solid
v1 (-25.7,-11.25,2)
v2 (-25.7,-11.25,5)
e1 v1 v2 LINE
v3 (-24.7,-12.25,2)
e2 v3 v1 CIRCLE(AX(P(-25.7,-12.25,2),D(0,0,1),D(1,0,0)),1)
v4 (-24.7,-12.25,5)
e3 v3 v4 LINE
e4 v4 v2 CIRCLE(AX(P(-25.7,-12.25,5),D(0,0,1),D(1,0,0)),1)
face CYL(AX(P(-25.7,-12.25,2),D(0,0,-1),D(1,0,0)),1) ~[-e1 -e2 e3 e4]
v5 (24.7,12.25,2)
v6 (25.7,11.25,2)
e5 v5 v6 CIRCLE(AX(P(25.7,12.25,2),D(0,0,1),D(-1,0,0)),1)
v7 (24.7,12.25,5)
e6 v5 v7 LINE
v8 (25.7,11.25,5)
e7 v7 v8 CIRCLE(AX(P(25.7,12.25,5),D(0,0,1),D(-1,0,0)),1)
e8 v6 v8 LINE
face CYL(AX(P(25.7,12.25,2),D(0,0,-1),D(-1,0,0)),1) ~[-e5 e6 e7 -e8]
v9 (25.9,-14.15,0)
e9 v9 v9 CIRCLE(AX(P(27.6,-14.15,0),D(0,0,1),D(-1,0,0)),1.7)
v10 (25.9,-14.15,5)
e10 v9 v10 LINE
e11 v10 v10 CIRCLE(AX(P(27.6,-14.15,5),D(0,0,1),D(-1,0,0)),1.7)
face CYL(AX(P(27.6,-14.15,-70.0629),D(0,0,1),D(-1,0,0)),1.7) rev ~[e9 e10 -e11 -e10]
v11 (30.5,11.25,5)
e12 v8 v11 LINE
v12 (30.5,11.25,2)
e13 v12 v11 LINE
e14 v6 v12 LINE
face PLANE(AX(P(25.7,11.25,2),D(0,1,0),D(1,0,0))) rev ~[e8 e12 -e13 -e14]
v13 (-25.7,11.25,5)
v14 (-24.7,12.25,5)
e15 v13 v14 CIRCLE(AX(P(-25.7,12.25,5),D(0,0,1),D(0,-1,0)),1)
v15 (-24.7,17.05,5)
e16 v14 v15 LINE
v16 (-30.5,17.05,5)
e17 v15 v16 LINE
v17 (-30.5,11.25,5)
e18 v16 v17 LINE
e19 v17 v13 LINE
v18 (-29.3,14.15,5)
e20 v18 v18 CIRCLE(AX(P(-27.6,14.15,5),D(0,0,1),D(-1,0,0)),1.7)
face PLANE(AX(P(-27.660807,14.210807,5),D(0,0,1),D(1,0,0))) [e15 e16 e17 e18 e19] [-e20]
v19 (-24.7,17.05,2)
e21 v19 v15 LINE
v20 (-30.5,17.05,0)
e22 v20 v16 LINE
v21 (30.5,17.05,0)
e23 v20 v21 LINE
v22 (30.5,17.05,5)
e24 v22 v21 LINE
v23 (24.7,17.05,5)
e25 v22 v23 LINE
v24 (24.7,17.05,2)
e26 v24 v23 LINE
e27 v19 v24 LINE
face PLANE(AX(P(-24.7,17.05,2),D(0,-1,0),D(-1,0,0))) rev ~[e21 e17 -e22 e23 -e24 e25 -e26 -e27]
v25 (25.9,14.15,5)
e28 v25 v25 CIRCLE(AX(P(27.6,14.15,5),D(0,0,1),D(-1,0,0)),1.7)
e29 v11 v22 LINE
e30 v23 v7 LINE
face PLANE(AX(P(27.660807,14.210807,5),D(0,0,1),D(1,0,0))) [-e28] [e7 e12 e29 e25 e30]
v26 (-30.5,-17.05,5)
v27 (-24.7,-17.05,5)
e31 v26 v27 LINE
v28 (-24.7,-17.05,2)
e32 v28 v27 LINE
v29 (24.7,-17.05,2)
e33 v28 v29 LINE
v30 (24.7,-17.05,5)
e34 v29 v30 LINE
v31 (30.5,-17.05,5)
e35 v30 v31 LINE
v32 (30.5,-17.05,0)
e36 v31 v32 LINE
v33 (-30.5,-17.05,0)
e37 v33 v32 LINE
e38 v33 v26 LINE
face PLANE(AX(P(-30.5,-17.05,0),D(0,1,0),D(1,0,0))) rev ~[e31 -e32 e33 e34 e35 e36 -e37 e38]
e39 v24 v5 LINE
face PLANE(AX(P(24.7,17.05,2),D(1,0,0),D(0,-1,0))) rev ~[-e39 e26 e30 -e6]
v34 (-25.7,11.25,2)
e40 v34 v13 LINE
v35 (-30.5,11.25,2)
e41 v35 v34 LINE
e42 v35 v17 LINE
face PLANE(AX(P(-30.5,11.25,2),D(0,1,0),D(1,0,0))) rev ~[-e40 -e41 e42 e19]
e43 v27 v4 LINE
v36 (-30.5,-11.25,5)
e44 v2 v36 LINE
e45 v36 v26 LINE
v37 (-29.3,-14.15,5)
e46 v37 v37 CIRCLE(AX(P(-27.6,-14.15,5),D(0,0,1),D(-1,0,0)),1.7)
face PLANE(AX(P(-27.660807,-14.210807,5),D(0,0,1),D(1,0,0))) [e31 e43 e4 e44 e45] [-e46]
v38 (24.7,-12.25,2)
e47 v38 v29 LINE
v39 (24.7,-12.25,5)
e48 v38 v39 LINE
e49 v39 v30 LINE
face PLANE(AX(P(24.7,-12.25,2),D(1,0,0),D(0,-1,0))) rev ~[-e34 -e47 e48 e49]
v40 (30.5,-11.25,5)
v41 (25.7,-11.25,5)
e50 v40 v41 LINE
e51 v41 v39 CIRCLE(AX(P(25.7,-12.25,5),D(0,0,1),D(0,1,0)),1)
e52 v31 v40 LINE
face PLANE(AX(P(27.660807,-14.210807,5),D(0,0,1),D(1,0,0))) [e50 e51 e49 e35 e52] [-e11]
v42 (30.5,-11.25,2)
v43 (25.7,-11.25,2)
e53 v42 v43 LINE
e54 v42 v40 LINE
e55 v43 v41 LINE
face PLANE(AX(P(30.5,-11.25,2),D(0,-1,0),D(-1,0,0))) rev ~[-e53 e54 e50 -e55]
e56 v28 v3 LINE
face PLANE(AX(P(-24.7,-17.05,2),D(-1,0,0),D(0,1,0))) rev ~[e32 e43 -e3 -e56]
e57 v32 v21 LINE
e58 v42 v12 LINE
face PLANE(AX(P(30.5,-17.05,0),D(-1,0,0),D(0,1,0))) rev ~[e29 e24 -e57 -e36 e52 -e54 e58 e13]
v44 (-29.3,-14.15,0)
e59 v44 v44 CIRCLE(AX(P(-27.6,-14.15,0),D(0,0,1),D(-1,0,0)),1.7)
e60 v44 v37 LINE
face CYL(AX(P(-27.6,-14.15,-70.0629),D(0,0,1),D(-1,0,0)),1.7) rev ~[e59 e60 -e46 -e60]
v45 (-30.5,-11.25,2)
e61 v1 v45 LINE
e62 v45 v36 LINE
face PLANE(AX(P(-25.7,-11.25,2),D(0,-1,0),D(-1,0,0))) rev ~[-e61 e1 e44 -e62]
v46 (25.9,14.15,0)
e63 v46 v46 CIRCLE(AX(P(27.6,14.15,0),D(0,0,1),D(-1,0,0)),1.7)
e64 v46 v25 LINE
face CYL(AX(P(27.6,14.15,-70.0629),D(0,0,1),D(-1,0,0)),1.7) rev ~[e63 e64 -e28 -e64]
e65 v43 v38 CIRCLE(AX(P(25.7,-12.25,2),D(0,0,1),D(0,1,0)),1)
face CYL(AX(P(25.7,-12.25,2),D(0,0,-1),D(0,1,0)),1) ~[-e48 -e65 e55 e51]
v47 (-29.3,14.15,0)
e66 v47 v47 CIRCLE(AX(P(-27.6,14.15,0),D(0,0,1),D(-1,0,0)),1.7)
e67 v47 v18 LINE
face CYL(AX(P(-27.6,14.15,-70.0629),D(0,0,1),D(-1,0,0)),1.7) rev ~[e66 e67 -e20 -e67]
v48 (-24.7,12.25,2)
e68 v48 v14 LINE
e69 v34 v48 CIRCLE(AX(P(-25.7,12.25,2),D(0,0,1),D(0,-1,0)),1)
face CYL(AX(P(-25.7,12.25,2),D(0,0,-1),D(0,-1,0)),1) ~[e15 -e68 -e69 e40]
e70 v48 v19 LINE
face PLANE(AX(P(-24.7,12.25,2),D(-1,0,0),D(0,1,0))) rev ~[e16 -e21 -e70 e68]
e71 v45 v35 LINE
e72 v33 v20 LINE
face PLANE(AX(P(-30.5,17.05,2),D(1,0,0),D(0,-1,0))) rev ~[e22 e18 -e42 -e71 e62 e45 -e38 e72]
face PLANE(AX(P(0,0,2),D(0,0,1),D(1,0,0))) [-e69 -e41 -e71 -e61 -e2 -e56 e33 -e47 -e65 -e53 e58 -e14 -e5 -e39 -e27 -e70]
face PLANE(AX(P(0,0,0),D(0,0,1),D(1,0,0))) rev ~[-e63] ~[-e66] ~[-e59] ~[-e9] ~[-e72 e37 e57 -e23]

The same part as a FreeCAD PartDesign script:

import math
import FreeCAD as App
import Part
import Sketcher


def add_polygon(sketch, points):
    """Adds a closed chain of lines whose ends are joined by coincident constraints."""
    first, n = sketch.GeometryCount, len(points)
    for a, b in zip(points, points[1:] + points[:1]):
        sketch.addGeometry(Part.LineSegment(App.Vector(*a, 0), App.Vector(*b, 0)), False)
    for i in range(n):
        sketch.addConstraint(Sketcher.Constraint("Coincident", first + i, 2, first + (i + 1) % n, 1))

doc = App.newDocument("Part")
body = doc.addObject("PartDesign::Body", "Body")

sketch1 = doc.addObject("Sketcher::SketchObject", "Sketch")
body.addObject(sketch1)
sketch1.AttachmentSupport = (doc.XY_Plane, [""])
sketch1.MapMode = "FlatFace"
add_polygon(sketch1, [(-30, 17), (-30, -17), (30, -17), (30, 17)])
sketch1.addConstraint(Sketcher.Constraint("Vertical", 0))
sketch1.addConstraint(Sketcher.Constraint("Horizontal", 1))
sketch1.addConstraint(Sketcher.Constraint("Vertical", 2))
sketch1.addConstraint(Sketcher.Constraint("Horizontal", 3))
sketch1.addConstraint(Sketcher.Constraint("Symmetric", 0, 2, 2, 2, -1, 1))
sketch1.addConstraint(Sketcher.Constraint("DistanceX", 1, 1, 1, 2, 61.0))
sketch1.addConstraint(Sketcher.Constraint("DistanceY", 0, 2, 0, 1, 34.1))
pad1 = doc.addObject("PartDesign::Pad", "Pad")
body.addObject(pad1)
pad1.Profile = sketch1
pad1.Length = 2

sketch2 = doc.addObject("Sketcher::SketchObject", "Sketch001")
body.addObject(sketch2)
sketch2.AttachmentSupport = (doc.XY_Plane, [""])
sketch2.MapMode = "FlatFace"
sketch2.AttachmentOffset = App.Placement(App.Vector(0, 0, 2), App.Rotation())
sketch2.addGeometry(Part.LineSegment(App.Vector(-24.7, 17.1, 0), App.Vector(-30.5, 17.1, 0)), False)
sketch2.addGeometry(Part.LineSegment(App.Vector(-30.5, 17.1, 0), App.Vector(-30.5, 11.2, 0)), False)
sketch2.addGeometry(Part.LineSegment(App.Vector(-30.5, 11.2, 0), App.Vector(-25.7, 11.2, 0)), False)
sketch2.addGeometry(Part.ArcOfCircle(Part.Circle(App.Vector(-25.7, 12.2, 0), App.Vector(0, 0, 1), 1), math.radians(-90), math.radians(0)), False)
sketch2.addGeometry(Part.LineSegment(App.Vector(-24.7, 12.2, 0), App.Vector(-24.7, 17.1, 0)), False)
sketch2.addGeometry(Part.LineSegment(App.Vector(-25.7, -11.2, 0), App.Vector(-30.5, -11.2, 0)), False)
sketch2.addGeometry(Part.LineSegment(App.Vector(-30.5, -11.2, 0), App.Vector(-30.5, -17.1, 0)), False)
sketch2.addGeometry(Part.LineSegment(App.Vector(-30.5, -17.1, 0), App.Vector(-24.7, -17.1, 0)), False)
sketch2.addGeometry(Part.LineSegment(App.Vector(-24.7, -17.1, 0), App.Vector(-24.7, -12.2, 0)), False)
sketch2.addGeometry(Part.ArcOfCircle(Part.Circle(App.Vector(-25.7, -12.2, 0), App.Vector(0, 0, 1), 1), math.radians(0), math.radians(90)), False)
sketch2.addGeometry(Part.LineSegment(App.Vector(30.5, -17.1, 0), App.Vector(30.5, -11.2, 0)), False)
sketch2.addGeometry(Part.LineSegment(App.Vector(30.5, -11.2, 0), App.Vector(25.7, -11.2, 0)), False)
sketch2.addGeometry(Part.ArcOfCircle(Part.Circle(App.Vector(25.7, -12.2, 0), App.Vector(0, 0, 1), 1), math.radians(90), math.radians(180)), False)
sketch2.addGeometry(Part.LineSegment(App.Vector(24.7, -12.2, 0), App.Vector(24.7, -17.1, 0)), False)
sketch2.addGeometry(Part.LineSegment(App.Vector(24.7, -17.1, 0), App.Vector(30.5, -17.1, 0)), False)
sketch2.addGeometry(Part.LineSegment(App.Vector(30.5, 17.1, 0), App.Vector(24.7, 17.1, 0)), False)
sketch2.addGeometry(Part.LineSegment(App.Vector(24.7, 17.1, 0), App.Vector(24.7, 12.2, 0)), False)
sketch2.addGeometry(Part.ArcOfCircle(Part.Circle(App.Vector(25.7, 12.2, 0), App.Vector(0, 0, 1), 1), math.radians(180), math.radians(270)), False)
sketch2.addGeometry(Part.LineSegment(App.Vector(25.7, 11.2, 0), App.Vector(30.5, 11.2, 0)), False)
sketch2.addGeometry(Part.LineSegment(App.Vector(30.5, 11.2, 0), App.Vector(30.5, 17.1, 0)), False)
sketch2.addConstraint(Sketcher.Constraint("Coincident", 0, 2, 1, 1))
sketch2.addConstraint(Sketcher.Constraint("Coincident", 1, 2, 2, 1))
sketch2.addConstraint(Sketcher.Constraint("Tangent", 2, 2, 3, 1))
sketch2.addConstraint(Sketcher.Constraint("Tangent", 3, 2, 4, 1))
sketch2.addConstraint(Sketcher.Constraint("Coincident", 4, 2, 0, 1))
sketch2.addConstraint(Sketcher.Constraint("Coincident", 5, 2, 6, 1))
sketch2.addConstraint(Sketcher.Constraint("Coincident", 6, 2, 7, 1))
sketch2.addConstraint(Sketcher.Constraint("Coincident", 7, 2, 8, 1))
sketch2.addConstraint(Sketcher.Constraint("Tangent", 8, 2, 9, 1))
sketch2.addConstraint(Sketcher.Constraint("Tangent", 9, 2, 5, 1))
sketch2.addConstraint(Sketcher.Constraint("Coincident", 10, 2, 11, 1))
sketch2.addConstraint(Sketcher.Constraint("Tangent", 11, 2, 12, 1))
sketch2.addConstraint(Sketcher.Constraint("Tangent", 12, 2, 13, 1))
sketch2.addConstraint(Sketcher.Constraint("Coincident", 13, 2, 14, 1))
sketch2.addConstraint(Sketcher.Constraint("Coincident", 14, 2, 10, 1))
sketch2.addConstraint(Sketcher.Constraint("Coincident", 15, 2, 16, 1))
sketch2.addConstraint(Sketcher.Constraint("Tangent", 16, 2, 17, 1))
sketch2.addConstraint(Sketcher.Constraint("Tangent", 17, 2, 18, 1))
sketch2.addConstraint(Sketcher.Constraint("Coincident", 18, 2, 19, 1))
sketch2.addConstraint(Sketcher.Constraint("Coincident", 19, 2, 15, 1))
sketch2.addConstraint(Sketcher.Constraint("Horizontal", 0))
sketch2.addConstraint(Sketcher.Constraint("Vertical", 1))
sketch2.addConstraint(Sketcher.Constraint("Horizontal", 2))
sketch2.addConstraint(Sketcher.Constraint("Vertical", 4))
sketch2.addConstraint(Sketcher.Constraint("Horizontal", 5))
sketch2.addConstraint(Sketcher.Constraint("Vertical", 6))
sketch2.addConstraint(Sketcher.Constraint("Horizontal", 7))
sketch2.addConstraint(Sketcher.Constraint("Vertical", 8))
sketch2.addConstraint(Sketcher.Constraint("Vertical", 10))
sketch2.addConstraint(Sketcher.Constraint("Horizontal", 11))
sketch2.addConstraint(Sketcher.Constraint("Vertical", 13))
sketch2.addConstraint(Sketcher.Constraint("Horizontal", 14))
sketch2.addConstraint(Sketcher.Constraint("Horizontal", 15))
sketch2.addConstraint(Sketcher.Constraint("Vertical", 16))
sketch2.addConstraint(Sketcher.Constraint("Horizontal", 18))
sketch2.addConstraint(Sketcher.Constraint("Vertical", 19))
sketch2.addConstraint(Sketcher.Constraint("Equal", 3, 9))
sketch2.addConstraint(Sketcher.Constraint("Equal", 9, 12))
sketch2.addConstraint(Sketcher.Constraint("Equal", 12, 17))
sketch2.addConstraint(Sketcher.Constraint("Symmetric", 3, 3, 12, 3, -1, 1))
sketch2.addConstraint(Sketcher.Constraint("Symmetric", 9, 3, 17, 3, -1, 1))
sketch2.addConstraint(Sketcher.Constraint("Symmetric", 0, 2, 14, 2, -1, 1))
sketch2.addConstraint(Sketcher.Constraint("Symmetric", 6, 2, 19, 2, -1, 1))
sketch2.addConstraint(Sketcher.Constraint("Symmetric", 9, 3, 12, 3, -2))
sketch2.addConstraint(Sketcher.Constraint("Symmetric", 6, 2, 14, 2, -2))
sketch2.addConstraint(Sketcher.Constraint("Equal", 15, 1))
sketch2.addConstraint(Sketcher.Constraint("Radius", 3, 1.0))
sketch2.addConstraint(Sketcher.Constraint("DistanceX", 0, 2, 0, 1, 5.8))
sketch2.addConstraint(Sketcher.Constraint("DistanceX", 3, 3, -1, 1, 25.7))
sketch2.addConstraint(Sketcher.Constraint("DistanceY", 9, 3, 3, 3, 24.5))
pad2 = doc.addObject("PartDesign::Pad", "Pad001")
body.addObject(pad2)
pad2.Profile = sketch2
pad2.Length = 3

sketch3 = doc.addObject("Sketcher::SketchObject", "Sketch002")
body.addObject(sketch3)
sketch3.AttachmentSupport = (doc.XY_Plane, [""])
sketch3.MapMode = "FlatFace"
sketch3.addGeometry(Part.Circle(App.Vector(-27.6, 14.2, 0), App.Vector(0, 0, 1), 1.7), False)
sketch3.addGeometry(Part.Circle(App.Vector(27.6, 14.2, 0), App.Vector(0, 0, 1), 1.7), False)
sketch3.addGeometry(Part.Circle(App.Vector(27.6, -14.2, 0), App.Vector(0, 0, 1), 1.7), False)
sketch3.addGeometry(Part.Circle(App.Vector(-27.6, -14.2, 0), App.Vector(0, 0, 1), 1.7), False)
sketch3.addConstraint(Sketcher.Constraint("Equal", 0, 1))
sketch3.addConstraint(Sketcher.Constraint("Equal", 1, 2))
sketch3.addConstraint(Sketcher.Constraint("Equal", 2, 3))
sketch3.addConstraint(Sketcher.Constraint("Symmetric", 0, 3, 2, 3, -1, 1))
sketch3.addConstraint(Sketcher.Constraint("Symmetric", 1, 3, 3, 3, -1, 1))
sketch3.addConstraint(Sketcher.Constraint("Symmetric", 0, 3, 1, 3, -2))
sketch3.addConstraint(Sketcher.Constraint("Diameter", 0, 3.4))
sketch3.addConstraint(Sketcher.Constraint("DistanceX", 0, 3, -1, 1, 27.6))
sketch3.addConstraint(Sketcher.Constraint("DistanceY", 2, 3, 1, 3, 28.3))
doc.recompute()
hole = doc.addObject("PartDesign::Hole", "Hole")
body.addObject(hole)
hole.Profile = sketch3
hole.ThreadType = "None"
hole.Diameter = 3.4
hole.DepthType = "ThroughAll"
hole.Reversed = True

doc.recompute()
